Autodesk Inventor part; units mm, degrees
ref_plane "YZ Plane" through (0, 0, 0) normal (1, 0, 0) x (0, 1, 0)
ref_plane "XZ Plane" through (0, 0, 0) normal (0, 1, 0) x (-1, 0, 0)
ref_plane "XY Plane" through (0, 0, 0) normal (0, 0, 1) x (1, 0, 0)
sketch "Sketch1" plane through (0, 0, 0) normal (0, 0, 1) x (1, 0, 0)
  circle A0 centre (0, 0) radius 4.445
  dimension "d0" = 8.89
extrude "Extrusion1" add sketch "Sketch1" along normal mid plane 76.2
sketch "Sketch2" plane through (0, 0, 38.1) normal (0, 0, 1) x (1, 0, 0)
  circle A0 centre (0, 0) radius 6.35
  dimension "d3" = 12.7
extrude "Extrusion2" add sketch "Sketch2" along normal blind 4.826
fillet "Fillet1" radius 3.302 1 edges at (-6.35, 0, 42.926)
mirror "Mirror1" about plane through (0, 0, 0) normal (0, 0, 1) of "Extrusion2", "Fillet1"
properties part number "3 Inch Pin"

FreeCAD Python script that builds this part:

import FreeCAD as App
import Part
import Sketcher

V = App.Vector
Q = App.Units.Quantity


def edges_at(feature, points):
    """Names of the edges that pass closest to the given points."""
    edges = feature.Shape.Edges
    near = lambda p: min(range(len(edges)), key=lambda i: edges[i].distToShape(Part.Vertex(*p))[0])
    return sorted({f"Edge{near(p) + 1}" for p in points})

doc = App.newDocument("Part")
body = doc.addObject("PartDesign::Body", "Body")

# Sketch on XY plane
sketch1 = body.newObject("Sketcher::SketchObject", "Sketch")
sketch1.AttachmentSupport = (doc.getObject("XY_Plane"), [""])
sketch1.MapMode = "FlatFace"
sketch1.addGeometry(Part.Circle(V(0, 0, 0), V(0, 0, 1), 4.4), False)
sketch1.addConstraint(Sketcher.Constraint("Coincident", 0, 3, -1, 1))
sketch1.addConstraint(Sketcher.Constraint("Diameter", 0, Q("0.35 in")))
pad1 = body.newObject("PartDesign::Pad", "Pad")
pad1.Profile = sketch1
pad1.Length = Q("3 in")
pad1.Midplane = True

# Sketch on XY plane
sketch2 = body.newObject("Sketcher::SketchObject", "Sketch001")
sketch2.AttachmentSupport = (doc.getObject("XY_Plane"), [""])
sketch2.MapMode = "FlatFace"
sketch2.AttachmentOffset = App.Placement(V(0, 0, 1.5 * 25.4), App.Rotation())
sketch2.addGeometry(Part.Circle(V(0, 0, 0), V(0, 0, 1), 6), False)
sketch2.addConstraint(Sketcher.Constraint("Coincident", 0, 3, -1, 1))
sketch2.addConstraint(Sketcher.Constraint("Diameter", 0, Q("0.5 in")))
pad2 = body.newObject("PartDesign::Pad", "Pad001")
pad2.Profile = sketch2
pad2.Length = Q("0.19 in")
doc.recompute()

fillet = body.newObject("PartDesign::Fillet", "Fillet")
fillet.Base = (pad2, edges_at(pad2, [(-6.35, 0, 42.926)]))
fillet.Radius = Q("0.13 in")
doc.recompute()

mirrored = body.newObject("PartDesign::Mirrored", "Mirrored")
mirrored.Originals = [pad2, fillet]
mirrored.MirrorPlane = (doc.getObject("XY_Plane"), [""])
body.Tip = mirrored

doc.recompute()
